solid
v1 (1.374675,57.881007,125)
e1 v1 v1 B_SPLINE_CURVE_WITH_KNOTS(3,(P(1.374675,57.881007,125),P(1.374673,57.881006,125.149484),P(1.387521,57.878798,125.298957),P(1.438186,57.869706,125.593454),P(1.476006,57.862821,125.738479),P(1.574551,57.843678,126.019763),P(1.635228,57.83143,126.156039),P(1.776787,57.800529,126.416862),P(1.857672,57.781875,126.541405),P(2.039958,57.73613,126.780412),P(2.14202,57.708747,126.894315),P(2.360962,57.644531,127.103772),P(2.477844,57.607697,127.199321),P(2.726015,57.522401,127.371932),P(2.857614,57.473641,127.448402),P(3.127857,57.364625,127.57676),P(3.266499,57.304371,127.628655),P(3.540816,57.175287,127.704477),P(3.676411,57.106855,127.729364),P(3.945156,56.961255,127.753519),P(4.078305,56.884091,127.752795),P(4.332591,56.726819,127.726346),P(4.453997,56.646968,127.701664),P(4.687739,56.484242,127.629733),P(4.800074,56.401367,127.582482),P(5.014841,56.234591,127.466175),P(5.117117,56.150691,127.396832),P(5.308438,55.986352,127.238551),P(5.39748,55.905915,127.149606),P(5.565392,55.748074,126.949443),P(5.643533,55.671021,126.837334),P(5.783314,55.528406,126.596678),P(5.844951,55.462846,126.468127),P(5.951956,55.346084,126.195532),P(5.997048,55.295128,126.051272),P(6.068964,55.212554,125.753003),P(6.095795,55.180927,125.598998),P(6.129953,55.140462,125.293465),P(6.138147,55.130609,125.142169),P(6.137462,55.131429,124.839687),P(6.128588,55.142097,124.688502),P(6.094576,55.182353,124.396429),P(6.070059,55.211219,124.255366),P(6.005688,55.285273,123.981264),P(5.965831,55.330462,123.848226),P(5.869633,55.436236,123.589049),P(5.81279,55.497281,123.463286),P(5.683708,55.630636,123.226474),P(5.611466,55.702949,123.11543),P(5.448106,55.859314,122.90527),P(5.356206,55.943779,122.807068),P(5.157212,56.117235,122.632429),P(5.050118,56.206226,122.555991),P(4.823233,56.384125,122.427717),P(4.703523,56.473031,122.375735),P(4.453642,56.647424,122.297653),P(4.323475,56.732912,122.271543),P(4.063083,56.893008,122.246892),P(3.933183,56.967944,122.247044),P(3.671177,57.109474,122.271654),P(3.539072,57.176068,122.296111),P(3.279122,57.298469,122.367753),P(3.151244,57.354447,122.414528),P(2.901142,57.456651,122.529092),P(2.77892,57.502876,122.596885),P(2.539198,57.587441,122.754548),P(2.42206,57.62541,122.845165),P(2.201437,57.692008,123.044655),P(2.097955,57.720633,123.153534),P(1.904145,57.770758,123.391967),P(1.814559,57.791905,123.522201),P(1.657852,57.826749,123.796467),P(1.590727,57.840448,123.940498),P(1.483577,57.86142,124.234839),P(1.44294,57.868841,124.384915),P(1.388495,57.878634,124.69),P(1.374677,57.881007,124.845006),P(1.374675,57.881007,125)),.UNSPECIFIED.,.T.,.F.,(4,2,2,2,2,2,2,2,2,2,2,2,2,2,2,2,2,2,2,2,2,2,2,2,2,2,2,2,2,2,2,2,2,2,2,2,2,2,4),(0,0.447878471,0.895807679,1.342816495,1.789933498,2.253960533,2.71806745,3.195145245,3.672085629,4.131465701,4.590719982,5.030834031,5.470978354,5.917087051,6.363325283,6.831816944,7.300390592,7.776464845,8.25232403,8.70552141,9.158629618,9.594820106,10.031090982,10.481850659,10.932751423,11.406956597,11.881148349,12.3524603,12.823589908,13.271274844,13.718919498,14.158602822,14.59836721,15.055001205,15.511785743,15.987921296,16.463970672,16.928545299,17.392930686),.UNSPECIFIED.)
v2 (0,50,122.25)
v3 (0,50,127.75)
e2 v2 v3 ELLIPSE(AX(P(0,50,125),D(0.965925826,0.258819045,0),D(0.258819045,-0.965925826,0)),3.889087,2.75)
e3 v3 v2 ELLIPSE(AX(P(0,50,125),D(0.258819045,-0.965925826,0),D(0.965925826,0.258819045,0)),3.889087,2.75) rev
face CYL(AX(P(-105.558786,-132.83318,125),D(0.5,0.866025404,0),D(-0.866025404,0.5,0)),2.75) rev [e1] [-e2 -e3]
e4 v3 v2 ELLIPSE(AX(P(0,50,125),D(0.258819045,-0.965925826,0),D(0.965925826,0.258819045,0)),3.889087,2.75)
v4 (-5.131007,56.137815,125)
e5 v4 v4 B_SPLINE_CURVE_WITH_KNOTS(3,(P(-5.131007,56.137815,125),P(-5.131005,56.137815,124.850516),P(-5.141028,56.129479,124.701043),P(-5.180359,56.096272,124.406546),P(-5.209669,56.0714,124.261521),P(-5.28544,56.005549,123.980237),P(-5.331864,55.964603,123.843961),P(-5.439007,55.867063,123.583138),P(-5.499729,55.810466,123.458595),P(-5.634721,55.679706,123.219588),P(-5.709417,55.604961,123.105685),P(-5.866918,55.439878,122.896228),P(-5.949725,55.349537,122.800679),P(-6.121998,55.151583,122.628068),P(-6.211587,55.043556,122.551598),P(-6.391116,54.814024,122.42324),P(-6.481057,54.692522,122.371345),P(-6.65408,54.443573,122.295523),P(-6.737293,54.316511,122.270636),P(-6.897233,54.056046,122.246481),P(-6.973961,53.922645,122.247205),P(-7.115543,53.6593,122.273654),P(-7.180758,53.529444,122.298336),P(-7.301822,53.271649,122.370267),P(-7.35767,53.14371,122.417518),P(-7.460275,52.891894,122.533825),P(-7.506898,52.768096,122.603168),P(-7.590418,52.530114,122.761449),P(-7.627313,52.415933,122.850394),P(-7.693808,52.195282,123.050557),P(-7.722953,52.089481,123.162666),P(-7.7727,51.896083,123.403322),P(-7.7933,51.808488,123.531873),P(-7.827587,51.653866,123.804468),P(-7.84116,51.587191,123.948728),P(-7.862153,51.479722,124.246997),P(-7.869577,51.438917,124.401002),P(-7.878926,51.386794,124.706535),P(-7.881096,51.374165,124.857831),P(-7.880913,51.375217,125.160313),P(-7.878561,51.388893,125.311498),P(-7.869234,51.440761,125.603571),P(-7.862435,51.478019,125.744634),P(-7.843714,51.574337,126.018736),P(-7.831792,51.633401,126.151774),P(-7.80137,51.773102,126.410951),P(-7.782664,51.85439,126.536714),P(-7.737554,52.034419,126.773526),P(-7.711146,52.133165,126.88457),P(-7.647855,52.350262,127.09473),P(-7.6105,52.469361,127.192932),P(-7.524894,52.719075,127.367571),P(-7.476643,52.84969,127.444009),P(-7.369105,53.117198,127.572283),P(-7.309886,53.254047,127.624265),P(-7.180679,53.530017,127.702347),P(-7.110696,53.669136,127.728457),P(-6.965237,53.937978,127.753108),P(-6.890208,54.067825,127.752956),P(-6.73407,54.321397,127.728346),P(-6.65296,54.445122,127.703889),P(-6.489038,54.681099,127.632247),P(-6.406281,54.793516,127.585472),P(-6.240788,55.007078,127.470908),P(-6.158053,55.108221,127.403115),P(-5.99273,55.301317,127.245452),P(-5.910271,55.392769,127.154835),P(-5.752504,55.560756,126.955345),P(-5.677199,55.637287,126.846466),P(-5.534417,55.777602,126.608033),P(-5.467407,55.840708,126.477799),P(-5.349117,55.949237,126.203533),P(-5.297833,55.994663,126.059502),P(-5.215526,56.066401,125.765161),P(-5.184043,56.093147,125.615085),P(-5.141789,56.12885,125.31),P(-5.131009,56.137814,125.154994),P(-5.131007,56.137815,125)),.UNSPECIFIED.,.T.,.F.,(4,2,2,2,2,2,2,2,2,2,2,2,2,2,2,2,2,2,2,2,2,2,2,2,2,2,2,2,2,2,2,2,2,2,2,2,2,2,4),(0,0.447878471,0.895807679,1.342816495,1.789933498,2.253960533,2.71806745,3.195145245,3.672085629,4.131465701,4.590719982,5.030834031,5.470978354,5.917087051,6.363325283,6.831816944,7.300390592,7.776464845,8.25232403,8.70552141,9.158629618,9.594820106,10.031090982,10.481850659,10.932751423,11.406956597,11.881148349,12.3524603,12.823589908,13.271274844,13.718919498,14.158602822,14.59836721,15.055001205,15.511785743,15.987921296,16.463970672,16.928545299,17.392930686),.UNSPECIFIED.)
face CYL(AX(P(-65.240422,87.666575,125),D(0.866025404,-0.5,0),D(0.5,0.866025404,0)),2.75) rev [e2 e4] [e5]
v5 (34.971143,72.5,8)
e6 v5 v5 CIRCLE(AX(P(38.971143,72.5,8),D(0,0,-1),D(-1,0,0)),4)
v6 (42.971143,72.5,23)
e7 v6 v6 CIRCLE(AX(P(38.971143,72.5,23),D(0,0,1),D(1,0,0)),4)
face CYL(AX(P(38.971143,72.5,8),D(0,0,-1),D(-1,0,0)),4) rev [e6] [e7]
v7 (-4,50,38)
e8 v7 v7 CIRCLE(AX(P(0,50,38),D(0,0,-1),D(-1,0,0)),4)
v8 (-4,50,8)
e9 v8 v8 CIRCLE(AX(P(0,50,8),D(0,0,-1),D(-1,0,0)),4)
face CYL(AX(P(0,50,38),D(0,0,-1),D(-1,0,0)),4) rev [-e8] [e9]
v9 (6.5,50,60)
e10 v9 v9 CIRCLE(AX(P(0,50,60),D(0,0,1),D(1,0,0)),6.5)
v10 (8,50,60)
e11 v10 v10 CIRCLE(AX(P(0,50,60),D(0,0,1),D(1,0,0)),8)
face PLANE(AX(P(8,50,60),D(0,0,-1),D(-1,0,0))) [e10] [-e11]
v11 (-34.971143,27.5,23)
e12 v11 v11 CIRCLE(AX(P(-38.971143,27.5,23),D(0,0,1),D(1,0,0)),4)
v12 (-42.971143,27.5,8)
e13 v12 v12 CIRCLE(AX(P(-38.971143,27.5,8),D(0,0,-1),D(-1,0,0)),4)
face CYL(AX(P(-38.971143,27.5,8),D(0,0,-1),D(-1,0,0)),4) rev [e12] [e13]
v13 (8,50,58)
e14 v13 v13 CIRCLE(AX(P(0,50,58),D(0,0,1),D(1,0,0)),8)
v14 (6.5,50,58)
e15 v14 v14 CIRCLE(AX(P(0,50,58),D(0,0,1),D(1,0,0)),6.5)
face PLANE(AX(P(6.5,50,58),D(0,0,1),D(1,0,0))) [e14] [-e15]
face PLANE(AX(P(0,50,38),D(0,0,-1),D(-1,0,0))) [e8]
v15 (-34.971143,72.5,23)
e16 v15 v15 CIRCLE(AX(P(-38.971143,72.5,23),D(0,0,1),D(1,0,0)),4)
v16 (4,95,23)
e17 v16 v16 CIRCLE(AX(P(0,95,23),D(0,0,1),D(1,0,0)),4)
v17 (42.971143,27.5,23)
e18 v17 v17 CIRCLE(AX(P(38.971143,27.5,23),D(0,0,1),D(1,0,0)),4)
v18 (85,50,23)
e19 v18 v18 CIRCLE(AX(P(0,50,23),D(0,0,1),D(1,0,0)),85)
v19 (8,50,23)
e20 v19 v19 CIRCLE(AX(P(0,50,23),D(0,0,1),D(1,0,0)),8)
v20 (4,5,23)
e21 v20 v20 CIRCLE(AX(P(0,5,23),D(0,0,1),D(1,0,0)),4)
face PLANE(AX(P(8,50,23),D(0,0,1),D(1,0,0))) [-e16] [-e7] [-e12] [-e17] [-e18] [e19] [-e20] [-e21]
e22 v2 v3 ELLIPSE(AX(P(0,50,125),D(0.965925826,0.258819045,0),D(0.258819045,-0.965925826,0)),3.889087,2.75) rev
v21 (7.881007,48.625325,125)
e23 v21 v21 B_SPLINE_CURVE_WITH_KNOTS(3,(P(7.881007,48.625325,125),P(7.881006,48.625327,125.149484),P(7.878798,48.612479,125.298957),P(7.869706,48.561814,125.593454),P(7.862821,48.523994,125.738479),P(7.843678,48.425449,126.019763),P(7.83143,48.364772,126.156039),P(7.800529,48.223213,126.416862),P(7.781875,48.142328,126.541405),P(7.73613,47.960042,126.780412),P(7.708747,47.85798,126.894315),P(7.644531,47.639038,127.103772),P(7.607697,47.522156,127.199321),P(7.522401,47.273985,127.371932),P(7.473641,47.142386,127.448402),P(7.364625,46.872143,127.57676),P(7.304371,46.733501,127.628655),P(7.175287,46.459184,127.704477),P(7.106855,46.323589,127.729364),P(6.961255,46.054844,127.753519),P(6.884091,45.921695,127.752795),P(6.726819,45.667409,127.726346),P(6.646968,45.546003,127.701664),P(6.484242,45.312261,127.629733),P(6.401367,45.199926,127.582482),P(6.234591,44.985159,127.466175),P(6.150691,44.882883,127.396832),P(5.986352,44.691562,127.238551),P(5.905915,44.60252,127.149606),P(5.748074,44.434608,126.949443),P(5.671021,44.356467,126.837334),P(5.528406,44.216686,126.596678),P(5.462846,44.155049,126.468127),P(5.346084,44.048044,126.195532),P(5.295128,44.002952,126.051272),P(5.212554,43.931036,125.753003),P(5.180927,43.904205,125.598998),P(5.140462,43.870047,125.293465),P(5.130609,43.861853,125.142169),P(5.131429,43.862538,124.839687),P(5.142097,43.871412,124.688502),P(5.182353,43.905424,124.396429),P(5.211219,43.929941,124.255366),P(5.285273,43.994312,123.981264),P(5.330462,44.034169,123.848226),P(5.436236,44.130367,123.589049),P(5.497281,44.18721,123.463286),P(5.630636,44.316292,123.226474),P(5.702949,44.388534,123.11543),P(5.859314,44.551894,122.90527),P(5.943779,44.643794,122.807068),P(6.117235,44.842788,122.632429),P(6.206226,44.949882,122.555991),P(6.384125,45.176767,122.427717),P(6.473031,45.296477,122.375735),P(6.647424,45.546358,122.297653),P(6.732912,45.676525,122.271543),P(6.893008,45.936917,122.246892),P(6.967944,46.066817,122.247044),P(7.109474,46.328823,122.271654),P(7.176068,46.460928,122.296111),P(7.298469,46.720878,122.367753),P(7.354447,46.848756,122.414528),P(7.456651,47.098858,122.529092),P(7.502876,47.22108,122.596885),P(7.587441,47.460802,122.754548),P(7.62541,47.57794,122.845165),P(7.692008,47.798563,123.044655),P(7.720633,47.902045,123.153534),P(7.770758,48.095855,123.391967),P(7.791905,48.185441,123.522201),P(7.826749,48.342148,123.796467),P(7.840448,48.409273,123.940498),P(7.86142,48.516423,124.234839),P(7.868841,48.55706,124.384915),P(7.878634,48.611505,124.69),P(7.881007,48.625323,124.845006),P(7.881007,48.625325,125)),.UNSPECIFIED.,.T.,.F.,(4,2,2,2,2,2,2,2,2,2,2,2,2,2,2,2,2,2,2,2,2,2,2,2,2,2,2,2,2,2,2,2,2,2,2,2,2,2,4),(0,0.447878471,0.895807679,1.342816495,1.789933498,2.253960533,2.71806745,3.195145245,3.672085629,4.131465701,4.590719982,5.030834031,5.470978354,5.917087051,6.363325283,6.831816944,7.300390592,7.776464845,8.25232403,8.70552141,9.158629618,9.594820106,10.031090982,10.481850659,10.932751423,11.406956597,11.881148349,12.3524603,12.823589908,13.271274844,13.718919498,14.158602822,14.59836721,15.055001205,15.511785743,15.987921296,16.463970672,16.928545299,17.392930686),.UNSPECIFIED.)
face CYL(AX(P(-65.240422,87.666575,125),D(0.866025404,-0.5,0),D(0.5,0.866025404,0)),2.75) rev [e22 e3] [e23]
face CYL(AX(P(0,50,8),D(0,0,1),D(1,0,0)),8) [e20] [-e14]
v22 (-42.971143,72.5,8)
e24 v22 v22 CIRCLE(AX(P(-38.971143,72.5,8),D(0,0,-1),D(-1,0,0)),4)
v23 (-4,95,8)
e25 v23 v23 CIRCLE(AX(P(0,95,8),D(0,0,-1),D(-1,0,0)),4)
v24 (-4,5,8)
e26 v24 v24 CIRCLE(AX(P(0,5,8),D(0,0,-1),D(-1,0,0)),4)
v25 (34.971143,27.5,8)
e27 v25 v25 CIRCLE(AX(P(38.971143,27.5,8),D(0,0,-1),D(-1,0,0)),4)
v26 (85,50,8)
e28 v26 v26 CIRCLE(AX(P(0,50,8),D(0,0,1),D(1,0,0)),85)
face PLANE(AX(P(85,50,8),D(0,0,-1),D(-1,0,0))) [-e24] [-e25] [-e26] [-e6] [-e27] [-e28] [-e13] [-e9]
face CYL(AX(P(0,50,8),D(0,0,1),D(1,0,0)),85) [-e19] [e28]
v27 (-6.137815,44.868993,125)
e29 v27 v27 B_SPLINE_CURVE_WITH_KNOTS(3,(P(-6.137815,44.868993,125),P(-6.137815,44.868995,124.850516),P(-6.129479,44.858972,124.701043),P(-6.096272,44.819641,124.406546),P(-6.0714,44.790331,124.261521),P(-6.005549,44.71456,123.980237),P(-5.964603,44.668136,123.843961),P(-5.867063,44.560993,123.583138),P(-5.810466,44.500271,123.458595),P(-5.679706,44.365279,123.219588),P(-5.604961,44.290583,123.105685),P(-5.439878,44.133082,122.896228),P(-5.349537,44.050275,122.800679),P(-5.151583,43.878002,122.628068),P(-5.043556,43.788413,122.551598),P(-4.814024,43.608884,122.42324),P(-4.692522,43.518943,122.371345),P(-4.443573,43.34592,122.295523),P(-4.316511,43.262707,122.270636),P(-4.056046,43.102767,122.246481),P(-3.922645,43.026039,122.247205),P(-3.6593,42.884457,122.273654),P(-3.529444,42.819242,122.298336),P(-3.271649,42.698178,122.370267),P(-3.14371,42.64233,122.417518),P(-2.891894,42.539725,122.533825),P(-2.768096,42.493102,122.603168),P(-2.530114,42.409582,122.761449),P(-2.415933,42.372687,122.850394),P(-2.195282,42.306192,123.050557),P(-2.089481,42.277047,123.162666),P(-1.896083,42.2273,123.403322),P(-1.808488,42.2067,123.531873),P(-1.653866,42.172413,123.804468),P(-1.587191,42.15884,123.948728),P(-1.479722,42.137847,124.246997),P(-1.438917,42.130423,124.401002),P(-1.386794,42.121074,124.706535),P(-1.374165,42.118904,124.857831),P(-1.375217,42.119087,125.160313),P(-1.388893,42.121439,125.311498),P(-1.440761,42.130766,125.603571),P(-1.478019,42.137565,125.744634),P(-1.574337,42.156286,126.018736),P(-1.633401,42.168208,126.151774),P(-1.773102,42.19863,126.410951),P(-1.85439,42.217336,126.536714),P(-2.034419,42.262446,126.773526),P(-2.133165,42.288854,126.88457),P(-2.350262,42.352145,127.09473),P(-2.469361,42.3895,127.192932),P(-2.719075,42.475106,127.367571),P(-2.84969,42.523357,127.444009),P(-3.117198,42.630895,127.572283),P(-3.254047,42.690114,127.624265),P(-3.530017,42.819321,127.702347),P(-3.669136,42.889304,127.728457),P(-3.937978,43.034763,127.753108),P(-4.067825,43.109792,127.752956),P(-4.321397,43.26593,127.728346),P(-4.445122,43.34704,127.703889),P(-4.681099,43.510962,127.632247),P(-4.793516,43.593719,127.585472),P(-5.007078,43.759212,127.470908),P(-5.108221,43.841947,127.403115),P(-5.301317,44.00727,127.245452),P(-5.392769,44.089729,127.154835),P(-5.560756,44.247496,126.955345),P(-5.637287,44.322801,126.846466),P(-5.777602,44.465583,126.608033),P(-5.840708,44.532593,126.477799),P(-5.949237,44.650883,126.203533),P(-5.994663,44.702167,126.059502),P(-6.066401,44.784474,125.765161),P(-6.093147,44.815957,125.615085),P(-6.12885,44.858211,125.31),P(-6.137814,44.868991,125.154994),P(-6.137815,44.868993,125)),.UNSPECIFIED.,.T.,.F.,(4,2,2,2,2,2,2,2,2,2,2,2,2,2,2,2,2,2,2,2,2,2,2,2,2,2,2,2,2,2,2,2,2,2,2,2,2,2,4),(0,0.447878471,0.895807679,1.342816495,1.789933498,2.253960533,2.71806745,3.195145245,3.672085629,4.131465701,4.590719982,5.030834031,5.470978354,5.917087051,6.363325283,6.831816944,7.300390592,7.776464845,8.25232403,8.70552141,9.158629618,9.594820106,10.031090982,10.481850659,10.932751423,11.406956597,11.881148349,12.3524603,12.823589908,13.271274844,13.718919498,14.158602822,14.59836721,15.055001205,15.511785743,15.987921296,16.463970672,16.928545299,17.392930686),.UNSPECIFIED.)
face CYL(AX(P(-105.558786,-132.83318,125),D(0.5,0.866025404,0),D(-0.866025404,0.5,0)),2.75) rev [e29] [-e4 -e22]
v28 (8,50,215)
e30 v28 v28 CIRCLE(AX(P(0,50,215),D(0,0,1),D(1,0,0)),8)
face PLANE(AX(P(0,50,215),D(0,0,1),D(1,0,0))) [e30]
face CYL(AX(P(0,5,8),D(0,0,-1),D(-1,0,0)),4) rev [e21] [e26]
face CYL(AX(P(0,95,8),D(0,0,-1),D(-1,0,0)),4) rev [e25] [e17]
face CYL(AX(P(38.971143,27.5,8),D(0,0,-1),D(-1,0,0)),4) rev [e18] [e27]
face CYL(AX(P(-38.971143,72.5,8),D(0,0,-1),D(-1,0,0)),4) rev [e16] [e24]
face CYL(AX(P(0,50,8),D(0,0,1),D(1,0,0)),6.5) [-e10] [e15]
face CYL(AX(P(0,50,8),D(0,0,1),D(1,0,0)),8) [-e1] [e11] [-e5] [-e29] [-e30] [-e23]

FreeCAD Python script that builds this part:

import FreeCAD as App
import Part
import Sketcher
Q = App.Units.Quantity

doc = App.newDocument("Part")
params = doc.addObject("Spreadsheet::Sheet", "Params")
for row, (alias, value) in enumerate([
    ("sketch1_width", "85 mm"),
    ("sketch1_width2", "8 mm"),
    ("sketch1_height", "207 mm"),
    ("sketch1_height2", "155 mm"),
    ("sketch1_height3", "2 mm"),
    ("revolution_angle", "360 deg"),
    ("sketch2_diameter", "8 mm"),
    ("hole_diameter", "8 mm"),
    ("hole_depth", "30 mm"),
    ("sketch3_diameter", "5.5 mm"),
    ("pocket1_length", "260 mm"),
    ("sketch4_diameter", "5.5 mm"),
    ("pocket2_length", "260 mm"),
    ("sketch5_diameter", "8 mm"),
    ("pocket3_length", "30 mm"),
], start=1):
    params.set(f"A{row}", alias)
    params.set(f"B{row}", "=" + value)
    params.setAlias(f"B{row}", alias)

body = doc.addObject("PartDesign::Body", "Body")

sketch1 = doc.addObject("Sketcher::SketchObject", "Sketch")
body.addObject(sketch1)
sketch1.AttachmentSupport = (doc.XZ_Plane, [""])
sketch1.MapMode = "FlatFace"
sketch1.AttachmentOffset = App.Placement(App.Vector(0, 0, -50), App.Rotation())
sketch1.addGeometry([
    Part.LineSegment(App.Vector(85, 8, 0), App.Vector(0, 8, 0)),
    Part.LineSegment(App.Vector(0, 8, 0), App.Vector(0, 215, 0)),
    Part.LineSegment(App.Vector(0, 215, 0), App.Vector(8, 215, 0)),
    Part.LineSegment(App.Vector(8, 215, 0), App.Vector(8, 60, 0)),
    Part.LineSegment(App.Vector(8, 60, 0), App.Vector(6.5, 60, 0)),
    Part.LineSegment(App.Vector(6.5, 60, 0), App.Vector(6.5, 58, 0)),
    Part.LineSegment(App.Vector(6.5, 58, 0), App.Vector(8, 58, 0)),
    Part.LineSegment(App.Vector(8, 58, 0), App.Vector(8, 23, 0)),
    Part.LineSegment(App.Vector(8, 23, 0), App.Vector(85, 23, 0)),
    Part.LineSegment(App.Vector(85, 23, 0), App.Vector(85, 8, 0)),
], False)
sketch1.addConstraint([
    Sketcher.Constraint("Coincident", 0, 2, 1, 1),
    Sketcher.Constraint("Coincident", 1, 2, 2, 1),
    Sketcher.Constraint("Coincident", 2, 2, 3, 1),
    Sketcher.Constraint("Coincident", 3, 2, 4, 1),
    Sketcher.Constraint("Coincident", 4, 2, 5, 1),
    Sketcher.Constraint("Coincident", 5, 2, 6, 1),
    Sketcher.Constraint("Coincident", 6, 2, 7, 1),
    Sketcher.Constraint("Coincident", 7, 2, 8, 1),
    Sketcher.Constraint("Coincident", 8, 2, 9, 1),
    Sketcher.Constraint("Coincident", 9, 2, 0, 1),
    Sketcher.Constraint("Horizontal", 0),
    Sketcher.Constraint("Vertical", 1),
    Sketcher.Constraint("Horizontal", 2),
    Sketcher.Constraint("Vertical", 3),
    Sketcher.Constraint("Horizontal", 4),
    Sketcher.Constraint("Vertical", 5),
    Sketcher.Constraint("Horizontal", 6),
    Sketcher.Constraint("Vertical", 7),
    Sketcher.Constraint("Horizontal", 8),
    Sketcher.Constraint("Vertical", 9),
    Sketcher.Constraint("PointOnObject", 0, 2, -2),
    Sketcher.Constraint("Vertical", 3, 2, 6, 2),
    Sketcher.Constraint("DistanceX", 0, 2, 0, 1, Q("85 mm")),
    Sketcher.Constraint("DistanceX", 2, 1, 2, 2, Q("8 mm")),
    Sketcher.Constraint("DistanceY", 1, 1, 1, 2, Q("207 mm")),
    Sketcher.Constraint("DistanceY", 3, 2, 3, 1, Q("155 mm")),
    Sketcher.Constraint("DistanceY", 5, 2, 5, 1, Q("2 mm")),
    Sketcher.Constraint("DistanceY", 7, 2, 7, 1, Q("35 mm")),
    Sketcher.Constraint("DistanceX", 4, 2, 4, 1, Q("1.5 mm")),
    Sketcher.Constraint("DistanceY", -1, 1, 0, 2, Q("8 mm")),
])
sketch1.setExpression("Constraints[22]", "Params.sketch1_width")
sketch1.setExpression("Constraints[23]", "Params.sketch1_width2")
sketch1.setExpression("Constraints[24]", "Params.sketch1_height")
sketch1.setExpression("Constraints[25]", "Params.sketch1_height2")
sketch1.setExpression("Constraints[26]", "Params.sketch1_height3")
revolution = doc.addObject("PartDesign::Revolution", "Revolution")
body.addObject(revolution)
revolution.Profile = sketch1
revolution.ReferenceAxis = (sketch1, ["V_Axis"])
revolution.setExpression("Angle", "Params.revolution_angle")

sketch2 = doc.addObject("Sketcher::SketchObject", "Sketch001")
body.addObject(sketch2)
sketch2.AttachmentSupport = (doc.XY_Plane, [""])
sketch2.MapMode = "FlatFace"
sketch2.AttachmentOffset = App.Placement(App.Vector(0, 0, 8), App.Rotation())
sketch2.addGeometry([
    Part.Circle(App.Vector(0, 95, 0), App.Vector(0, 0, 1), 4),
    Part.Circle(App.Vector(39, 72.5, 0), App.Vector(0, 0, 1), 4),
    Part.Circle(App.Vector(39, 27.5, 0), App.Vector(0, 0, 1), 4),
    Part.Circle(App.Vector(0, 5, 0), App.Vector(0, 0, 1), 4),
    Part.Circle(App.Vector(-39, 27.5, 0), App.Vector(0, 0, 1), 4),
    Part.Circle(App.Vector(-39, 72.5, 0), App.Vector(0, 0, 1), 4),
], False)
sketch2.addConstraint([
    Sketcher.Constraint("Equal", 0, 1),
    Sketcher.Constraint("Equal", 1, 2),
    Sketcher.Constraint("Equal", 2, 3),
    Sketcher.Constraint("Equal", 3, 4),
    Sketcher.Constraint("Equal", 4, 5),
    Sketcher.Constraint("Symmetric", 2, 3, 4, 3, -2),
    Sketcher.Constraint("Symmetric", 1, 3, 5, 3, -2),
    Sketcher.Constraint("PointOnObject", 0, 3, -2),
    Sketcher.Constraint("PointOnObject", 3, 3, -2),
    Sketcher.Constraint("Vertical", 1, 3, 2, 3),
    Sketcher.Constraint("Diameter", 0, Q("8 mm")),
    Sketcher.Constraint("DistanceY", -1, 1, 0, 3, Q("95 mm")),
    Sketcher.Constraint("DistanceY", -1, 1, 3, 3, Q("5 mm")),
    Sketcher.Constraint("DistanceY", 2, 3, 1, 3, Q("45 mm")),
    Sketcher.Constraint("DistanceY", -1, 1, 1, 3, Q("72.5 mm")),
    Sketcher.Constraint("DistanceX", -1, 1, 1, 3, Q("38.971143 mm")),
])
sketch2.setExpression("Constraints[10]", "Params.sketch2_diameter")
doc.recompute()
hole = doc.addObject("PartDesign::Hole", "Hole")
body.addObject(hole)
hole.Profile = sketch2
hole.ThreadType = "None"
hole.setExpression("Diameter", "Params.hole_diameter")
hole.DepthType = "Dimension"
hole.setExpression("Depth", "Params.hole_depth")
hole.DrillPoint = "Angled"
hole.DrillPointAngle = 118
hole.Reversed = True

sketch3 = doc.addObject("Sketcher::SketchObject", "Sketch002")
body.addObject(sketch3)
sketch3.Placement = App.Placement(App.Vector(138.275548, -79.833425, 0), App.Rotation(App.Vector(-0.5, -0.866025404, 0), App.Vector(0, 0, -1), App.Vector(0.866025404, -0.5, 0), "ZXY"))
sketch3.addGeometry(Part.Circle(App.Vector(-43.3, -125, 0), App.Vector(0, 0, 1), 2.8), False)
sketch3.addConstraint([
    Sketcher.Constraint("Diameter", 0, Q("5.5 mm")),
    Sketcher.Constraint("DistanceY", 0, 3, -1, 1, Q("125 mm")),
    Sketcher.Constraint("DistanceX", 0, 3, -1, 1, Q("43.30127 mm")),
])
sketch3.setExpression("Constraints[0]", "Params.sketch3_diameter")
pocket1 = doc.addObject("PartDesign::Pocket", "Pocket")
body.addObject(pocket1)
pocket1.Profile = sketch3
pocket1.setExpression("Length", "Params.pocket1_length")

sketch4 = doc.addObject("Sketcher::SketchObject", "Sketch003")
body.addObject(sketch4)
sketch4.Placement = App.Placement(App.Vector(46.091849, 79.833425, 0), App.Rotation(App.Vector(0.866025404, -0.5, 0), App.Vector(0, 0, -1), App.Vector(0.5, 0.866025404, 0), "ZXY"))
sketch4.addGeometry(Part.Circle(App.Vector(-25, -125, 0), App.Vector(0, 0, 1), 2.8), False)
sketch4.addConstraint([
    Sketcher.Constraint("Diameter", 0, Q("5.5 mm")),
    Sketcher.Constraint("DistanceX", 0, 3, -1, 1, Q("25 mm")),
    Sketcher.Constraint("DistanceY", 0, 3, -1, 1, Q("125 mm")),
])
sketch4.setExpression("Constraints[0]", "Params.sketch4_diameter")
pocket2 = doc.addObject("PartDesign::Pocket", "Pocket001")
body.addObject(pocket2)
pocket2.Profile = sketch4
pocket2.setExpression("Length", "Params.pocket2_length")

sketch5 = doc.addObject("Sketcher::SketchObject", "Sketch004")
body.addObject(sketch5)
sketch5.AttachmentSupport = (doc.XY_Plane, [""])
sketch5.MapMode = "FlatFace"
sketch5.AttachmentOffset = App.Placement(App.Vector(0, 0, 8), App.Rotation())
sketch5.addGeometry(Part.Circle(App.Vector(0, 50, 0), App.Vector(0, 0, 1), 4), False)
sketch5.addConstraint([
    Sketcher.Constraint("PointOnObject", 0, 3, -2),
    Sketcher.Constraint("Diameter", 0, Q("8 mm")),
    Sketcher.Constraint("DistanceY", -1, 1, 0, 3, Q("50 mm")),
])
sketch5.setExpression("Constraints[1]", "Params.sketch5_diameter")
pocket3 = doc.addObject("PartDesign::Pocket", "Pocket002")
body.addObject(pocket3)
pocket3.Profile = sketch5
pocket3.setExpression("Length", "Params.pocket3_length")
pocket3.Reversed = True

doc.recompute()
